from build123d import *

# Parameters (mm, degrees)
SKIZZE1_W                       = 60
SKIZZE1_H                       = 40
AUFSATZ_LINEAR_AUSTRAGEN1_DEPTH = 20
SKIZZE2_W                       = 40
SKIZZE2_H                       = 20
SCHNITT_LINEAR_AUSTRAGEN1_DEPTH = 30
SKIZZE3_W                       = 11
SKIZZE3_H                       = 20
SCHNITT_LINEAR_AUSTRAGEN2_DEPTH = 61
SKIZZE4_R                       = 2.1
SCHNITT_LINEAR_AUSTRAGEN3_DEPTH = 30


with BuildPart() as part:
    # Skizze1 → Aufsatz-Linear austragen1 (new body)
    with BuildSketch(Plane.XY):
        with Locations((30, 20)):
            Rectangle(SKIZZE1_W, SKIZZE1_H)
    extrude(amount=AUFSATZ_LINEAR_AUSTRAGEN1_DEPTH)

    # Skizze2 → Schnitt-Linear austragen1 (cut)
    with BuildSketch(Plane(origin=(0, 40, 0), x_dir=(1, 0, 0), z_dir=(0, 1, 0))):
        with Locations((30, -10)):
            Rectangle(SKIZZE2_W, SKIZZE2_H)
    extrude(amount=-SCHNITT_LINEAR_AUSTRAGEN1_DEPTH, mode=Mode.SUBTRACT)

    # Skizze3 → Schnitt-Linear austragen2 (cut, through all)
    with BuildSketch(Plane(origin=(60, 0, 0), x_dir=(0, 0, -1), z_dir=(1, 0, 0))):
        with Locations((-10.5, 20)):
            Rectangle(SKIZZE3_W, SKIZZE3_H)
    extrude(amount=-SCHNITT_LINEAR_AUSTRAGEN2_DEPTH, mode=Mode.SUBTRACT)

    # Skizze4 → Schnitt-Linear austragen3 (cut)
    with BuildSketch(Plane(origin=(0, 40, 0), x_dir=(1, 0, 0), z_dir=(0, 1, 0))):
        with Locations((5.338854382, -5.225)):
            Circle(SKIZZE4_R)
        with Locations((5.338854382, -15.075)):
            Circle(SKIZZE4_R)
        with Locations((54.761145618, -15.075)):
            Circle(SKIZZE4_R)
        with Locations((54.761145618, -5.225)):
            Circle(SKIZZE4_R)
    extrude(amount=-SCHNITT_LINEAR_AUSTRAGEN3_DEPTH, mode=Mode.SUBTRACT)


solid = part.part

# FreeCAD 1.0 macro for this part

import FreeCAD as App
import Part
import Sketcher
from FreeCAD import Vector
Q = App.Units.Quantity


def add_polygon(sketch, points):
    """Adds a closed chain of lines whose ends are joined by coincident constraints."""
    first, n = sketch.GeometryCount, len(points)
    for a, b in zip(points, points[1:] + points[:1]):
        sketch.addGeometry(Part.LineSegment(App.Vector(*a, 0), App.Vector(*b, 0)), False)
    for i in range(n):
        sketch.addConstraint(Sketcher.Constraint("Coincident", first + i, 2, first + (i + 1) % n, 1))

doc = App.newDocument("Part")
body = doc.addObject("PartDesign::Body", "Body")

# Sketch on XY plane
sketch1 = body.newObject("Sketcher::SketchObject", "Sketch")
sketch1.AttachmentSupport = (doc.getObject("XY_Plane"), [""])
sketch1.MapMode = "FlatFace"
add_polygon(sketch1, [(0, 40), (0, 0), (60, 0), (60, 40)])  # lines 0-3
sketch1.addConstraint(Sketcher.Constraint("Vertical", 0))
sketch1.addConstraint(Sketcher.Constraint("Horizontal", 1))
sketch1.addConstraint(Sketcher.Constraint("Vertical", 2))
sketch1.addConstraint(Sketcher.Constraint("Horizontal", 3))
sketch1.addConstraint(Sketcher.Constraint("Coincident", 0, 2, -1, 1))
sketch1.addConstraint(Sketcher.Constraint("DistanceX", 1, 1, 1, 2, Q("60 mm")))
sketch1.addConstraint(Sketcher.Constraint("DistanceY", 0, 2, 0, 1, Q("40 mm")))
pad1 = body.newObject("PartDesign::Pad", "Pad")
pad1.Profile = sketch1
pad1.Length = 20

# Sketch on XZ plane
sketch2 = body.newObject("Sketcher::SketchObject", "Sketch001")
sketch2.AttachmentSupport = (doc.getObject("XZ_Plane"), [""])
sketch2.MapMode = "FlatFace"
sketch2.AttachmentOffset = App.Placement(Vector(0, 0, -40), App.Rotation())
add_polygon(sketch2, [(10, 0), (10, 20), (50, 20), (50, 0)])  # lines 0-3
sketch2.addConstraint(Sketcher.Constraint("Vertical", 0))
sketch2.addConstraint(Sketcher.Constraint("Horizontal", 1))
sketch2.addConstraint(Sketcher.Constraint("Vertical", 2))
sketch2.addConstraint(Sketcher.Constraint("Horizontal", 3))
sketch2.addConstraint(Sketcher.Constraint("PointOnObject", 2, 2, -1))
sketch2.addConstraint(Sketcher.Constraint("DistanceX", 1, 1, 1, 2, Q("40 mm")))
sketch2.addConstraint(Sketcher.Constraint("DistanceY", 0, 1, 0, 2, Q("20 mm")))
sketch2.addConstraint(Sketcher.Constraint("DistanceX", -1, 1, 0, 2, Q("10 mm")))
pocket1 = body.newObject("PartDesign::Pocket", "Pocket")
pocket1.Profile = sketch2
pocket1.Length = 30
pocket1.Reversed = True

# Sketch on YZ plane
sketch3 = body.newObject("Sketcher::SketchObject", "Sketch002")
sketch3.AttachmentSupport = (doc.getObject("YZ_Plane"), [""])
sketch3.MapMode = "FlatFace"
sketch3.AttachmentOffset = App.Placement(Vector(0, 0, 60), App.Rotation())
add_polygon(sketch3, [(30, 16), (10, 16), (10, 5), (30, 5)])  # lines 0-3
sketch3.addConstraint(Sketcher.Constraint("Horizontal", 0))
sketch3.addConstraint(Sketcher.Constraint("Vertical", 1))
sketch3.addConstraint(Sketcher.Constraint("Horizontal", 2))
sketch3.addConstraint(Sketcher.Constraint("Vertical", 3))
sketch3.addConstraint(Sketcher.Constraint("DistanceX", 0, 2, 0, 1, Q("20 mm")))
sketch3.addConstraint(Sketcher.Constraint("DistanceY", 1, 2, 1, 1, Q("11 mm")))
sketch3.addConstraint(Sketcher.Constraint("DistanceX", -1, 1, 0, 2, Q("10 mm")))
sketch3.addConstraint(Sketcher.Constraint("DistanceY", -1, 1, 0, 2, Q("16 mm")))
pocket2 = body.newObject("PartDesign::Pocket", "Pocket001")
pocket2.Profile = sketch3
pocket2.Type = "ThroughAll"

# Sketch on XZ plane
sketch4 = body.newObject("Sketcher::SketchObject", "Sketch003")
sketch4.AttachmentSupport = (doc.getObject("XZ_Plane"), [""])
sketch4.MapMode = "FlatFace"
sketch4.AttachmentOffset = App.Placement(Vector(0, 0, -40), App.Rotation())
sketch4.addGeometry(Part.Circle(Vector(5.3, 5.2, 0), Vector(0, 0, 1), 2.1), False)
sketch4.addGeometry(Part.Circle(Vector(5.3, 15.1, 0), Vector(0, 0, 1), 2.1), False)
sketch4.addGeometry(Part.Circle(Vector(54.8, 15.1, 0), Vector(0, 0, 1), 2.1), False)
sketch4.addGeometry(Part.Circle(Vector(54.8, 5.2, 0), Vector(0, 0, 1), 2.1), False)
sketch4.addConstraint(Sketcher.Constraint("Equal", 0, 1))
sketch4.addConstraint(Sketcher.Constraint("Equal", 1, 2))
sketch4.addConstraint(Sketcher.Constraint("Equal", 2, 3))
sketch4.addConstraint(Sketcher.Constraint("Horizontal", 1, 3, 2, 3))
sketch4.addConstraint(Sketcher.Constraint("Horizontal", 0, 3, 3, 3))
sketch4.addConstraint(Sketcher.Constraint("Vertical", 0, 3, 1, 3))
sketch4.addConstraint(Sketcher.Constraint("Vertical", 2, 3, 3, 3))
sketch4.addConstraint(Sketcher.Constraint("Diameter", 0, Q("4.2 mm")))
sketch4.addConstraint(Sketcher.Constraint("DistanceY", 0, 3, 1, 3, Q("9.85 mm")))
sketch4.addConstraint(Sketcher.Constraint("DistanceY", -1, 1, 0, 3, Q("5.225 mm")))
sketch4.addConstraint(Sketcher.Constraint("DistanceX", 1, 3, 2, 3, Q("49.422291 mm")))
sketch4.addConstraint(Sketcher.Constraint("DistanceX", -1, 1, 0, 3, Q("5.338854 mm")))
pocket3 = body.newObject("PartDesign::Pocket", "Pocket002")
pocket3.Profile = sketch4
pocket3.Length = 30
pocket3.Reversed = True

doc.recompute()
